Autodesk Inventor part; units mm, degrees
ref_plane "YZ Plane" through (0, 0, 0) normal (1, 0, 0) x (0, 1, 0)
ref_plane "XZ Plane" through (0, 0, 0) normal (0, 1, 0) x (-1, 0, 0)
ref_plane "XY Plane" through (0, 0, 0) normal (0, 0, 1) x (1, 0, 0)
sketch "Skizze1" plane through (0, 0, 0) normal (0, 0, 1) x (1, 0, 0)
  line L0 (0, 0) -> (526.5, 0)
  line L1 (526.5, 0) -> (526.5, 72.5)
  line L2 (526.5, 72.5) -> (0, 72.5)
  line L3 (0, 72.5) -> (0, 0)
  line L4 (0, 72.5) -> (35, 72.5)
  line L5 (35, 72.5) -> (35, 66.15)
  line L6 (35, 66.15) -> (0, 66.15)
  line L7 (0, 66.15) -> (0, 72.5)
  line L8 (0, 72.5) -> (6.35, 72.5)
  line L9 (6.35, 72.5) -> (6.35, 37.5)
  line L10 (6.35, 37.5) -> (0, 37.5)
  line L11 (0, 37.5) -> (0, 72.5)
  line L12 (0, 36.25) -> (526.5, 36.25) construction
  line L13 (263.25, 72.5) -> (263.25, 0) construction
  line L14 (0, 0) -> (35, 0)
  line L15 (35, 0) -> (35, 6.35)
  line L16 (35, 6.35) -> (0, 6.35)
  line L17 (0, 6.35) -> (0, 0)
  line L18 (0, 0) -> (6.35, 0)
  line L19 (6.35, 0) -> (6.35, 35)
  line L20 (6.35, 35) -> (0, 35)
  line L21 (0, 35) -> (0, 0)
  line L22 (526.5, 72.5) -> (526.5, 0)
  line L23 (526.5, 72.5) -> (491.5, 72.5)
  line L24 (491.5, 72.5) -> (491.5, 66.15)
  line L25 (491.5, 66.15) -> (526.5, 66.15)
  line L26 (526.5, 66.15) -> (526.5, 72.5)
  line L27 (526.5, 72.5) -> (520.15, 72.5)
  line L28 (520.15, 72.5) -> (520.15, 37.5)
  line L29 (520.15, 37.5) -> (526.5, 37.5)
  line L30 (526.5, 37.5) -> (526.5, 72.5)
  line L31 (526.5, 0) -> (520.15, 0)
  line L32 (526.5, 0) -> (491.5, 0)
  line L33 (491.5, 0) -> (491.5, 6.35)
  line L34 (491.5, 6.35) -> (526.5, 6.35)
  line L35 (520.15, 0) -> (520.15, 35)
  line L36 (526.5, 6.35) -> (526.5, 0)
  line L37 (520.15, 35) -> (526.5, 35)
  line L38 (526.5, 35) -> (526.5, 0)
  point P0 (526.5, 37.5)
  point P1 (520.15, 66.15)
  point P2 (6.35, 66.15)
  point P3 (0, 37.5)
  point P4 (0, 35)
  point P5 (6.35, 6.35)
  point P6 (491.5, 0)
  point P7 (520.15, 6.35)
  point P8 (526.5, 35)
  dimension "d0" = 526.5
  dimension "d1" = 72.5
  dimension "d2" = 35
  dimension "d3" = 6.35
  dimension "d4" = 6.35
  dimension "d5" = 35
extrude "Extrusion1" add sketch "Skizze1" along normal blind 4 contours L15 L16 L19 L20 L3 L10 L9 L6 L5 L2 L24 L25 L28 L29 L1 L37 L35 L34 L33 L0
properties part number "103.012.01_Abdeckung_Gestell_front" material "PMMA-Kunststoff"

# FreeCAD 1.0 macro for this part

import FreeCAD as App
import Part
import Sketcher
Q = App.Units.Quantity

doc = App.newDocument("Part")
params = doc.addObject("Spreadsheet::Sheet", "Params")
for row, (alias, value) in enumerate([
    ("sketch1_width", "6.35 mm"),
    ("pad1_length", "4 mm"),
], start=1):
    params.set(f"A{row}", alias)
    params.set(f"B{row}", "=" + value)
    params.setAlias(f"B{row}", alias)

body = doc.addObject("PartDesign::Body", "Body")

sketch1 = body.newObject("Sketcher::SketchObject", "Sketch")
sketch1.AttachmentSupport = (doc.getObject("XY_Plane"), [""])
sketch1.MapMode = "FlatFace"
sketch1.addGeometry([
    Part.LineSegment(App.Vector(35, 6.3, 0), App.Vector(35, 0, 0)),
    Part.LineSegment(App.Vector(35, 0, 0), App.Vector(491.5, 0, 0)),
    Part.LineSegment(App.Vector(491.5, 0, 0), App.Vector(491.5, 6.3, 0)),
    Part.LineSegment(App.Vector(491.5, 6.3, 0), App.Vector(520.1, 6.3, 0)),
    Part.LineSegment(App.Vector(520.1, 6.3, 0), App.Vector(520.1, 35, 0)),
    Part.LineSegment(App.Vector(520.1, 35, 0), App.Vector(526.5, 35, 0)),
    Part.LineSegment(App.Vector(526.5, 35, 0), App.Vector(526.5, 37.5, 0)),
    Part.LineSegment(App.Vector(526.5, 37.5, 0), App.Vector(520.1, 37.5, 0)),
    Part.LineSegment(App.Vector(520.1, 37.5, 0), App.Vector(520.1, 66.2, 0)),
    Part.LineSegment(App.Vector(520.1, 66.2, 0), App.Vector(491.5, 66.2, 0)),
    Part.LineSegment(App.Vector(491.5, 66.2, 0), App.Vector(491.5, 72.5, 0)),
    Part.LineSegment(App.Vector(491.5, 72.5, 0), App.Vector(35, 72.5, 0)),
    Part.LineSegment(App.Vector(35, 72.5, 0), App.Vector(35, 66.2, 0)),
    Part.LineSegment(App.Vector(35, 66.2, 0), App.Vector(6.3, 66.2, 0)),
    Part.LineSegment(App.Vector(6.3, 66.2, 0), App.Vector(6.3, 37.5, 0)),
    Part.LineSegment(App.Vector(6.3, 37.5, 0), App.Vector(0, 37.5, 0)),
    Part.LineSegment(App.Vector(0, 37.5, 0), App.Vector(0, 35, 0)),
    Part.LineSegment(App.Vector(0, 35, 0), App.Vector(6.3, 35, 0)),
    Part.LineSegment(App.Vector(6.3, 35, 0), App.Vector(6.3, 6.3, 0)),
    Part.LineSegment(App.Vector(6.3, 6.3, 0), App.Vector(35, 6.3, 0)),
], False)
sketch1.addConstraint([
    Sketcher.Constraint("Coincident", 0, 2, 1, 1),
    Sketcher.Constraint("Coincident", 1, 2, 2, 1),
    Sketcher.Constraint("Coincident", 2, 2, 3, 1),
    Sketcher.Constraint("Coincident", 3, 2, 4, 1),
    Sketcher.Constraint("Coincident", 4, 2, 5, 1),
    Sketcher.Constraint("Coincident", 5, 2, 6, 1),
    Sketcher.Constraint("Coincident", 6, 2, 7, 1),
    Sketcher.Constraint("Coincident", 7, 2, 8, 1),
    Sketcher.Constraint("Coincident", 8, 2, 9, 1),
    Sketcher.Constraint("Coincident", 9, 2, 10, 1),
    Sketcher.Constraint("Coincident", 10, 2, 11, 1),
    Sketcher.Constraint("Coincident", 11, 2, 12, 1),
    Sketcher.Constraint("Coincident", 12, 2, 13, 1),
    Sketcher.Constraint("Coincident", 13, 2, 14, 1),
    Sketcher.Constraint("Coincident", 14, 2, 15, 1),
    Sketcher.Constraint("Coincident", 15, 2, 16, 1),
    Sketcher.Constraint("Coincident", 16, 2, 17, 1),
    Sketcher.Constraint("Coincident", 17, 2, 18, 1),
    Sketcher.Constraint("Coincident", 18, 2, 19, 1),
    Sketcher.Constraint("Coincident", 19, 2, 0, 1),
    Sketcher.Constraint("Vertical", 0),
    Sketcher.Constraint("Horizontal", 1),
    Sketcher.Constraint("Vertical", 2),
    Sketcher.Constraint("Horizontal", 3),
    Sketcher.Constraint("Vertical", 4),
    Sketcher.Constraint("Horizontal", 5),
    Sketcher.Constraint("Vertical", 6),
    Sketcher.Constraint("Horizontal", 7),
    Sketcher.Constraint("Vertical", 8),
    Sketcher.Constraint("Horizontal", 9),
    Sketcher.Constraint("Vertical", 10),
    Sketcher.Constraint("Horizontal", 11),
    Sketcher.Constraint("Vertical", 12),
    Sketcher.Constraint("Horizontal", 13),
    Sketcher.Constraint("Vertical", 14),
    Sketcher.Constraint("Horizontal", 15),
    Sketcher.Constraint("Vertical", 16),
    Sketcher.Constraint("Horizontal", 17),
    Sketcher.Constraint("Vertical", 18),
    Sketcher.Constraint("Horizontal", 19),
    Sketcher.Constraint("PointOnObject", 0, 2, -1),
    Sketcher.Constraint("PointOnObject", 15, 2, -2),
    Sketcher.Constraint("Horizontal", 9, 2, 12, 2),
    Sketcher.Constraint("Horizontal", 7, 2, 14, 2),
    Sketcher.Constraint("Horizontal", 5, 2, 16, 2),
    Sketcher.Constraint("Horizontal", 3, 2, 18, 2),
    Sketcher.Constraint("Vertical", 4, 2, 7, 2),
    Sketcher.Constraint("Vertical", 2, 2, 9, 2),
    Sketcher.Constraint("Vertical", 0, 2, 11, 2),
    Sketcher.Constraint("Vertical", 14, 2, 17, 2),
    Sketcher.Constraint("Equal", 9, 13),
    Sketcher.Constraint("Equal", 7, 15),
    Sketcher.Constraint("Equal", 17, 0),
    Sketcher.Constraint("Equal", 19, 4),
    Sketcher.Constraint("Equal", 4, 8),
    Sketcher.Constraint("Equal", 2, 10),
    Sketcher.Constraint("DistanceX", -1, 1, 0, 2, Q("35 mm")),
    Sketcher.Constraint("DistanceX", 5, 1, 5, 2, Q("6.35 mm")),
    Sketcher.Constraint("DistanceX", -1, 1, 5, 2, Q("526.5 mm")),
    Sketcher.Constraint("DistanceY", -1, 1, 10, 2, Q("72.5 mm")),
])
sketch1.setExpression("Constraints[57]", "Params.sketch1_width")
pad1 = body.newObject("PartDesign::Pad", "Pad")
pad1.Profile = sketch1
pad1.setExpression("Length", "Params.pad1_length")

doc.recompute()
